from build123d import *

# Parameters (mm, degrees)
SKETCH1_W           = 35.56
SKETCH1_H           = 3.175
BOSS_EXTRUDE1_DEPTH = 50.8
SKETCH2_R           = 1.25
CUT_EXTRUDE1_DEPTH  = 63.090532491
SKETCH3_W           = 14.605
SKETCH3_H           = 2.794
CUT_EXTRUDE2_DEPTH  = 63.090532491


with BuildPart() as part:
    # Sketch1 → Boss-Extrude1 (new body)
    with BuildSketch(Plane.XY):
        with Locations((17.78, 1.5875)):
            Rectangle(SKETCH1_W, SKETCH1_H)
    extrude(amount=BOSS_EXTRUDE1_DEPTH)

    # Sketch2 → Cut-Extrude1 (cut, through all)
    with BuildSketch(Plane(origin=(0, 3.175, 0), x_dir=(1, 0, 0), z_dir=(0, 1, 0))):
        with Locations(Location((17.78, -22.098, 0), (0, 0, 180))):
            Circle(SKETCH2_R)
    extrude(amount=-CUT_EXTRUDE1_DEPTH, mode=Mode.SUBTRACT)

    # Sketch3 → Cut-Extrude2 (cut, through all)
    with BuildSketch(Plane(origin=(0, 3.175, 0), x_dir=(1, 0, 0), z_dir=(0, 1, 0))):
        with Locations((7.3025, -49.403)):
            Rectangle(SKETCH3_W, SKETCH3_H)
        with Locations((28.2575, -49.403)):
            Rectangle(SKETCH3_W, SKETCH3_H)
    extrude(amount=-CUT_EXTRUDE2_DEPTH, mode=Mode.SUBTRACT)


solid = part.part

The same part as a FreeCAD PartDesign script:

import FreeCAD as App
import Part
import Sketcher

V = App.Vector
Q = App.Units.Quantity


def add_polygon(sketch, points):
    """Adds a closed chain of lines whose ends are joined by coincident constraints."""
    first, n = sketch.GeometryCount, len(points)
    for a, b in zip(points, points[1:] + points[:1]):
        sketch.addGeometry(Part.LineSegment(App.Vector(*a, 0), App.Vector(*b, 0)), False)
    for i in range(n):
        sketch.addConstraint(Sketcher.Constraint("Coincident", first + i, 2, first + (i + 1) % n, 1))

doc = App.newDocument("Part")
body = doc.addObject("PartDesign::Body", "Body")

sketch1 = body.newObject("Sketcher::SketchObject", "Sketch")
sketch1.AttachmentSupport = (doc.getObject("XY_Plane"), [""])
sketch1.MapMode = "FlatFace"
add_polygon(sketch1, [(0, 3.175), (0, 0), (35.56, 0), (35.56, 3.175)])
sketch1.addConstraint(Sketcher.Constraint("Vertical", 0))
sketch1.addConstraint(Sketcher.Constraint("Horizontal", 1))
sketch1.addConstraint(Sketcher.Constraint("Vertical", 2))
sketch1.addConstraint(Sketcher.Constraint("Horizontal", 3))
sketch1.addConstraint(Sketcher.Constraint("Coincident", 0, 2, -1, 1))
sketch1.addConstraint(Sketcher.Constraint("DistanceX", 1, 1, 1, 2, Q("1.4 in")))
sketch1.addConstraint(Sketcher.Constraint("DistanceY", 0, 2, 0, 1, Q("0.125 in")))
pad1 = body.newObject("PartDesign::Pad", "Pad")
pad1.Profile = sketch1
pad1.Length = Q("2 in")

sketch2 = body.newObject("Sketcher::SketchObject", "Sketch001")
sketch2.AttachmentSupport = (doc.getObject("XZ_Plane"), [""])
sketch2.MapMode = "FlatFace"
sketch2.AttachmentOffset = App.Placement(V(0, 0, -0.125 * 25.4), App.Rotation())
sketch2.addGeometry(Part.Circle(V(17.78, 22.098, 0), V(0, 0, 1), 1.25), False)
sketch2.addConstraint(Sketcher.Constraint("DistanceX", -1, 1, 0, 3, Q("0.7 in")))
sketch2.addConstraint(Sketcher.Constraint("Diameter", 0, Q("2.5 mm")))
sketch2.addConstraint(Sketcher.Constraint("DistanceY", -1, 1, 0, 3, Q("0.87 in")))
pocket1 = body.newObject("PartDesign::Pocket", "Pocket")
pocket1.Profile = sketch2
pocket1.Type = "ThroughAll"
pocket1.Reversed = True

sketch3 = body.newObject("Sketcher::SketchObject", "Sketch002")
sketch3.AttachmentSupport = (doc.getObject("XZ_Plane"), [""])
sketch3.MapMode = "FlatFace"
sketch3.AttachmentOffset = App.Placement(V(0, 0, -0.125 * 25.4), App.Rotation())
add_polygon(sketch3, [(0, 48.006), (0, 50.8), (14.605, 50.8), (14.605, 48.006)])
add_polygon(sketch3, [(20.955, 48.006), (20.955, 50.8), (35.56, 50.8), (35.56, 48.006)])
sketch3.addConstraint(Sketcher.Constraint("Vertical", 0))
sketch3.addConstraint(Sketcher.Constraint("Horizontal", 1))
sketch3.addConstraint(Sketcher.Constraint("Vertical", 2))
sketch3.addConstraint(Sketcher.Constraint("Horizontal", 3))
sketch3.addConstraint(Sketcher.Constraint("Vertical", 4))
sketch3.addConstraint(Sketcher.Constraint("Horizontal", 5))
sketch3.addConstraint(Sketcher.Constraint("Vertical", 6))
sketch3.addConstraint(Sketcher.Constraint("Horizontal", 7))
sketch3.addConstraint(Sketcher.Constraint("PointOnObject", 0, 2, -2))
sketch3.addConstraint(Sketcher.Constraint("Horizontal", 1, 2, 4, 2))
sketch3.addConstraint(Sketcher.Constraint("Horizontal", 3, 2, 6, 2))
sketch3.addConstraint(Sketcher.Constraint("Equal", 3, 5))
sketch3.addConstraint(Sketcher.Constraint("DistanceY", -1, 1, 0, 2, Q("2 in")))
sketch3.addConstraint(Sketcher.Constraint("DistanceY", 0, 1, 0, 2, Q("0.11 in")))
sketch3.addConstraint(Sketcher.Constraint("DistanceX", -1, 1, 5, 2, Q("1.4 in")))
sketch3.addConstraint(Sketcher.Constraint("DistanceX", 1, 1, 1, 2, Q("0.575 in")))
pocket2 = body.newObject("PartDesign::Pocket", "Pocket001")
pocket2.Profile = sketch3
pocket2.Type = "ThroughAll"
pocket2.Reversed = True

doc.recompute()
